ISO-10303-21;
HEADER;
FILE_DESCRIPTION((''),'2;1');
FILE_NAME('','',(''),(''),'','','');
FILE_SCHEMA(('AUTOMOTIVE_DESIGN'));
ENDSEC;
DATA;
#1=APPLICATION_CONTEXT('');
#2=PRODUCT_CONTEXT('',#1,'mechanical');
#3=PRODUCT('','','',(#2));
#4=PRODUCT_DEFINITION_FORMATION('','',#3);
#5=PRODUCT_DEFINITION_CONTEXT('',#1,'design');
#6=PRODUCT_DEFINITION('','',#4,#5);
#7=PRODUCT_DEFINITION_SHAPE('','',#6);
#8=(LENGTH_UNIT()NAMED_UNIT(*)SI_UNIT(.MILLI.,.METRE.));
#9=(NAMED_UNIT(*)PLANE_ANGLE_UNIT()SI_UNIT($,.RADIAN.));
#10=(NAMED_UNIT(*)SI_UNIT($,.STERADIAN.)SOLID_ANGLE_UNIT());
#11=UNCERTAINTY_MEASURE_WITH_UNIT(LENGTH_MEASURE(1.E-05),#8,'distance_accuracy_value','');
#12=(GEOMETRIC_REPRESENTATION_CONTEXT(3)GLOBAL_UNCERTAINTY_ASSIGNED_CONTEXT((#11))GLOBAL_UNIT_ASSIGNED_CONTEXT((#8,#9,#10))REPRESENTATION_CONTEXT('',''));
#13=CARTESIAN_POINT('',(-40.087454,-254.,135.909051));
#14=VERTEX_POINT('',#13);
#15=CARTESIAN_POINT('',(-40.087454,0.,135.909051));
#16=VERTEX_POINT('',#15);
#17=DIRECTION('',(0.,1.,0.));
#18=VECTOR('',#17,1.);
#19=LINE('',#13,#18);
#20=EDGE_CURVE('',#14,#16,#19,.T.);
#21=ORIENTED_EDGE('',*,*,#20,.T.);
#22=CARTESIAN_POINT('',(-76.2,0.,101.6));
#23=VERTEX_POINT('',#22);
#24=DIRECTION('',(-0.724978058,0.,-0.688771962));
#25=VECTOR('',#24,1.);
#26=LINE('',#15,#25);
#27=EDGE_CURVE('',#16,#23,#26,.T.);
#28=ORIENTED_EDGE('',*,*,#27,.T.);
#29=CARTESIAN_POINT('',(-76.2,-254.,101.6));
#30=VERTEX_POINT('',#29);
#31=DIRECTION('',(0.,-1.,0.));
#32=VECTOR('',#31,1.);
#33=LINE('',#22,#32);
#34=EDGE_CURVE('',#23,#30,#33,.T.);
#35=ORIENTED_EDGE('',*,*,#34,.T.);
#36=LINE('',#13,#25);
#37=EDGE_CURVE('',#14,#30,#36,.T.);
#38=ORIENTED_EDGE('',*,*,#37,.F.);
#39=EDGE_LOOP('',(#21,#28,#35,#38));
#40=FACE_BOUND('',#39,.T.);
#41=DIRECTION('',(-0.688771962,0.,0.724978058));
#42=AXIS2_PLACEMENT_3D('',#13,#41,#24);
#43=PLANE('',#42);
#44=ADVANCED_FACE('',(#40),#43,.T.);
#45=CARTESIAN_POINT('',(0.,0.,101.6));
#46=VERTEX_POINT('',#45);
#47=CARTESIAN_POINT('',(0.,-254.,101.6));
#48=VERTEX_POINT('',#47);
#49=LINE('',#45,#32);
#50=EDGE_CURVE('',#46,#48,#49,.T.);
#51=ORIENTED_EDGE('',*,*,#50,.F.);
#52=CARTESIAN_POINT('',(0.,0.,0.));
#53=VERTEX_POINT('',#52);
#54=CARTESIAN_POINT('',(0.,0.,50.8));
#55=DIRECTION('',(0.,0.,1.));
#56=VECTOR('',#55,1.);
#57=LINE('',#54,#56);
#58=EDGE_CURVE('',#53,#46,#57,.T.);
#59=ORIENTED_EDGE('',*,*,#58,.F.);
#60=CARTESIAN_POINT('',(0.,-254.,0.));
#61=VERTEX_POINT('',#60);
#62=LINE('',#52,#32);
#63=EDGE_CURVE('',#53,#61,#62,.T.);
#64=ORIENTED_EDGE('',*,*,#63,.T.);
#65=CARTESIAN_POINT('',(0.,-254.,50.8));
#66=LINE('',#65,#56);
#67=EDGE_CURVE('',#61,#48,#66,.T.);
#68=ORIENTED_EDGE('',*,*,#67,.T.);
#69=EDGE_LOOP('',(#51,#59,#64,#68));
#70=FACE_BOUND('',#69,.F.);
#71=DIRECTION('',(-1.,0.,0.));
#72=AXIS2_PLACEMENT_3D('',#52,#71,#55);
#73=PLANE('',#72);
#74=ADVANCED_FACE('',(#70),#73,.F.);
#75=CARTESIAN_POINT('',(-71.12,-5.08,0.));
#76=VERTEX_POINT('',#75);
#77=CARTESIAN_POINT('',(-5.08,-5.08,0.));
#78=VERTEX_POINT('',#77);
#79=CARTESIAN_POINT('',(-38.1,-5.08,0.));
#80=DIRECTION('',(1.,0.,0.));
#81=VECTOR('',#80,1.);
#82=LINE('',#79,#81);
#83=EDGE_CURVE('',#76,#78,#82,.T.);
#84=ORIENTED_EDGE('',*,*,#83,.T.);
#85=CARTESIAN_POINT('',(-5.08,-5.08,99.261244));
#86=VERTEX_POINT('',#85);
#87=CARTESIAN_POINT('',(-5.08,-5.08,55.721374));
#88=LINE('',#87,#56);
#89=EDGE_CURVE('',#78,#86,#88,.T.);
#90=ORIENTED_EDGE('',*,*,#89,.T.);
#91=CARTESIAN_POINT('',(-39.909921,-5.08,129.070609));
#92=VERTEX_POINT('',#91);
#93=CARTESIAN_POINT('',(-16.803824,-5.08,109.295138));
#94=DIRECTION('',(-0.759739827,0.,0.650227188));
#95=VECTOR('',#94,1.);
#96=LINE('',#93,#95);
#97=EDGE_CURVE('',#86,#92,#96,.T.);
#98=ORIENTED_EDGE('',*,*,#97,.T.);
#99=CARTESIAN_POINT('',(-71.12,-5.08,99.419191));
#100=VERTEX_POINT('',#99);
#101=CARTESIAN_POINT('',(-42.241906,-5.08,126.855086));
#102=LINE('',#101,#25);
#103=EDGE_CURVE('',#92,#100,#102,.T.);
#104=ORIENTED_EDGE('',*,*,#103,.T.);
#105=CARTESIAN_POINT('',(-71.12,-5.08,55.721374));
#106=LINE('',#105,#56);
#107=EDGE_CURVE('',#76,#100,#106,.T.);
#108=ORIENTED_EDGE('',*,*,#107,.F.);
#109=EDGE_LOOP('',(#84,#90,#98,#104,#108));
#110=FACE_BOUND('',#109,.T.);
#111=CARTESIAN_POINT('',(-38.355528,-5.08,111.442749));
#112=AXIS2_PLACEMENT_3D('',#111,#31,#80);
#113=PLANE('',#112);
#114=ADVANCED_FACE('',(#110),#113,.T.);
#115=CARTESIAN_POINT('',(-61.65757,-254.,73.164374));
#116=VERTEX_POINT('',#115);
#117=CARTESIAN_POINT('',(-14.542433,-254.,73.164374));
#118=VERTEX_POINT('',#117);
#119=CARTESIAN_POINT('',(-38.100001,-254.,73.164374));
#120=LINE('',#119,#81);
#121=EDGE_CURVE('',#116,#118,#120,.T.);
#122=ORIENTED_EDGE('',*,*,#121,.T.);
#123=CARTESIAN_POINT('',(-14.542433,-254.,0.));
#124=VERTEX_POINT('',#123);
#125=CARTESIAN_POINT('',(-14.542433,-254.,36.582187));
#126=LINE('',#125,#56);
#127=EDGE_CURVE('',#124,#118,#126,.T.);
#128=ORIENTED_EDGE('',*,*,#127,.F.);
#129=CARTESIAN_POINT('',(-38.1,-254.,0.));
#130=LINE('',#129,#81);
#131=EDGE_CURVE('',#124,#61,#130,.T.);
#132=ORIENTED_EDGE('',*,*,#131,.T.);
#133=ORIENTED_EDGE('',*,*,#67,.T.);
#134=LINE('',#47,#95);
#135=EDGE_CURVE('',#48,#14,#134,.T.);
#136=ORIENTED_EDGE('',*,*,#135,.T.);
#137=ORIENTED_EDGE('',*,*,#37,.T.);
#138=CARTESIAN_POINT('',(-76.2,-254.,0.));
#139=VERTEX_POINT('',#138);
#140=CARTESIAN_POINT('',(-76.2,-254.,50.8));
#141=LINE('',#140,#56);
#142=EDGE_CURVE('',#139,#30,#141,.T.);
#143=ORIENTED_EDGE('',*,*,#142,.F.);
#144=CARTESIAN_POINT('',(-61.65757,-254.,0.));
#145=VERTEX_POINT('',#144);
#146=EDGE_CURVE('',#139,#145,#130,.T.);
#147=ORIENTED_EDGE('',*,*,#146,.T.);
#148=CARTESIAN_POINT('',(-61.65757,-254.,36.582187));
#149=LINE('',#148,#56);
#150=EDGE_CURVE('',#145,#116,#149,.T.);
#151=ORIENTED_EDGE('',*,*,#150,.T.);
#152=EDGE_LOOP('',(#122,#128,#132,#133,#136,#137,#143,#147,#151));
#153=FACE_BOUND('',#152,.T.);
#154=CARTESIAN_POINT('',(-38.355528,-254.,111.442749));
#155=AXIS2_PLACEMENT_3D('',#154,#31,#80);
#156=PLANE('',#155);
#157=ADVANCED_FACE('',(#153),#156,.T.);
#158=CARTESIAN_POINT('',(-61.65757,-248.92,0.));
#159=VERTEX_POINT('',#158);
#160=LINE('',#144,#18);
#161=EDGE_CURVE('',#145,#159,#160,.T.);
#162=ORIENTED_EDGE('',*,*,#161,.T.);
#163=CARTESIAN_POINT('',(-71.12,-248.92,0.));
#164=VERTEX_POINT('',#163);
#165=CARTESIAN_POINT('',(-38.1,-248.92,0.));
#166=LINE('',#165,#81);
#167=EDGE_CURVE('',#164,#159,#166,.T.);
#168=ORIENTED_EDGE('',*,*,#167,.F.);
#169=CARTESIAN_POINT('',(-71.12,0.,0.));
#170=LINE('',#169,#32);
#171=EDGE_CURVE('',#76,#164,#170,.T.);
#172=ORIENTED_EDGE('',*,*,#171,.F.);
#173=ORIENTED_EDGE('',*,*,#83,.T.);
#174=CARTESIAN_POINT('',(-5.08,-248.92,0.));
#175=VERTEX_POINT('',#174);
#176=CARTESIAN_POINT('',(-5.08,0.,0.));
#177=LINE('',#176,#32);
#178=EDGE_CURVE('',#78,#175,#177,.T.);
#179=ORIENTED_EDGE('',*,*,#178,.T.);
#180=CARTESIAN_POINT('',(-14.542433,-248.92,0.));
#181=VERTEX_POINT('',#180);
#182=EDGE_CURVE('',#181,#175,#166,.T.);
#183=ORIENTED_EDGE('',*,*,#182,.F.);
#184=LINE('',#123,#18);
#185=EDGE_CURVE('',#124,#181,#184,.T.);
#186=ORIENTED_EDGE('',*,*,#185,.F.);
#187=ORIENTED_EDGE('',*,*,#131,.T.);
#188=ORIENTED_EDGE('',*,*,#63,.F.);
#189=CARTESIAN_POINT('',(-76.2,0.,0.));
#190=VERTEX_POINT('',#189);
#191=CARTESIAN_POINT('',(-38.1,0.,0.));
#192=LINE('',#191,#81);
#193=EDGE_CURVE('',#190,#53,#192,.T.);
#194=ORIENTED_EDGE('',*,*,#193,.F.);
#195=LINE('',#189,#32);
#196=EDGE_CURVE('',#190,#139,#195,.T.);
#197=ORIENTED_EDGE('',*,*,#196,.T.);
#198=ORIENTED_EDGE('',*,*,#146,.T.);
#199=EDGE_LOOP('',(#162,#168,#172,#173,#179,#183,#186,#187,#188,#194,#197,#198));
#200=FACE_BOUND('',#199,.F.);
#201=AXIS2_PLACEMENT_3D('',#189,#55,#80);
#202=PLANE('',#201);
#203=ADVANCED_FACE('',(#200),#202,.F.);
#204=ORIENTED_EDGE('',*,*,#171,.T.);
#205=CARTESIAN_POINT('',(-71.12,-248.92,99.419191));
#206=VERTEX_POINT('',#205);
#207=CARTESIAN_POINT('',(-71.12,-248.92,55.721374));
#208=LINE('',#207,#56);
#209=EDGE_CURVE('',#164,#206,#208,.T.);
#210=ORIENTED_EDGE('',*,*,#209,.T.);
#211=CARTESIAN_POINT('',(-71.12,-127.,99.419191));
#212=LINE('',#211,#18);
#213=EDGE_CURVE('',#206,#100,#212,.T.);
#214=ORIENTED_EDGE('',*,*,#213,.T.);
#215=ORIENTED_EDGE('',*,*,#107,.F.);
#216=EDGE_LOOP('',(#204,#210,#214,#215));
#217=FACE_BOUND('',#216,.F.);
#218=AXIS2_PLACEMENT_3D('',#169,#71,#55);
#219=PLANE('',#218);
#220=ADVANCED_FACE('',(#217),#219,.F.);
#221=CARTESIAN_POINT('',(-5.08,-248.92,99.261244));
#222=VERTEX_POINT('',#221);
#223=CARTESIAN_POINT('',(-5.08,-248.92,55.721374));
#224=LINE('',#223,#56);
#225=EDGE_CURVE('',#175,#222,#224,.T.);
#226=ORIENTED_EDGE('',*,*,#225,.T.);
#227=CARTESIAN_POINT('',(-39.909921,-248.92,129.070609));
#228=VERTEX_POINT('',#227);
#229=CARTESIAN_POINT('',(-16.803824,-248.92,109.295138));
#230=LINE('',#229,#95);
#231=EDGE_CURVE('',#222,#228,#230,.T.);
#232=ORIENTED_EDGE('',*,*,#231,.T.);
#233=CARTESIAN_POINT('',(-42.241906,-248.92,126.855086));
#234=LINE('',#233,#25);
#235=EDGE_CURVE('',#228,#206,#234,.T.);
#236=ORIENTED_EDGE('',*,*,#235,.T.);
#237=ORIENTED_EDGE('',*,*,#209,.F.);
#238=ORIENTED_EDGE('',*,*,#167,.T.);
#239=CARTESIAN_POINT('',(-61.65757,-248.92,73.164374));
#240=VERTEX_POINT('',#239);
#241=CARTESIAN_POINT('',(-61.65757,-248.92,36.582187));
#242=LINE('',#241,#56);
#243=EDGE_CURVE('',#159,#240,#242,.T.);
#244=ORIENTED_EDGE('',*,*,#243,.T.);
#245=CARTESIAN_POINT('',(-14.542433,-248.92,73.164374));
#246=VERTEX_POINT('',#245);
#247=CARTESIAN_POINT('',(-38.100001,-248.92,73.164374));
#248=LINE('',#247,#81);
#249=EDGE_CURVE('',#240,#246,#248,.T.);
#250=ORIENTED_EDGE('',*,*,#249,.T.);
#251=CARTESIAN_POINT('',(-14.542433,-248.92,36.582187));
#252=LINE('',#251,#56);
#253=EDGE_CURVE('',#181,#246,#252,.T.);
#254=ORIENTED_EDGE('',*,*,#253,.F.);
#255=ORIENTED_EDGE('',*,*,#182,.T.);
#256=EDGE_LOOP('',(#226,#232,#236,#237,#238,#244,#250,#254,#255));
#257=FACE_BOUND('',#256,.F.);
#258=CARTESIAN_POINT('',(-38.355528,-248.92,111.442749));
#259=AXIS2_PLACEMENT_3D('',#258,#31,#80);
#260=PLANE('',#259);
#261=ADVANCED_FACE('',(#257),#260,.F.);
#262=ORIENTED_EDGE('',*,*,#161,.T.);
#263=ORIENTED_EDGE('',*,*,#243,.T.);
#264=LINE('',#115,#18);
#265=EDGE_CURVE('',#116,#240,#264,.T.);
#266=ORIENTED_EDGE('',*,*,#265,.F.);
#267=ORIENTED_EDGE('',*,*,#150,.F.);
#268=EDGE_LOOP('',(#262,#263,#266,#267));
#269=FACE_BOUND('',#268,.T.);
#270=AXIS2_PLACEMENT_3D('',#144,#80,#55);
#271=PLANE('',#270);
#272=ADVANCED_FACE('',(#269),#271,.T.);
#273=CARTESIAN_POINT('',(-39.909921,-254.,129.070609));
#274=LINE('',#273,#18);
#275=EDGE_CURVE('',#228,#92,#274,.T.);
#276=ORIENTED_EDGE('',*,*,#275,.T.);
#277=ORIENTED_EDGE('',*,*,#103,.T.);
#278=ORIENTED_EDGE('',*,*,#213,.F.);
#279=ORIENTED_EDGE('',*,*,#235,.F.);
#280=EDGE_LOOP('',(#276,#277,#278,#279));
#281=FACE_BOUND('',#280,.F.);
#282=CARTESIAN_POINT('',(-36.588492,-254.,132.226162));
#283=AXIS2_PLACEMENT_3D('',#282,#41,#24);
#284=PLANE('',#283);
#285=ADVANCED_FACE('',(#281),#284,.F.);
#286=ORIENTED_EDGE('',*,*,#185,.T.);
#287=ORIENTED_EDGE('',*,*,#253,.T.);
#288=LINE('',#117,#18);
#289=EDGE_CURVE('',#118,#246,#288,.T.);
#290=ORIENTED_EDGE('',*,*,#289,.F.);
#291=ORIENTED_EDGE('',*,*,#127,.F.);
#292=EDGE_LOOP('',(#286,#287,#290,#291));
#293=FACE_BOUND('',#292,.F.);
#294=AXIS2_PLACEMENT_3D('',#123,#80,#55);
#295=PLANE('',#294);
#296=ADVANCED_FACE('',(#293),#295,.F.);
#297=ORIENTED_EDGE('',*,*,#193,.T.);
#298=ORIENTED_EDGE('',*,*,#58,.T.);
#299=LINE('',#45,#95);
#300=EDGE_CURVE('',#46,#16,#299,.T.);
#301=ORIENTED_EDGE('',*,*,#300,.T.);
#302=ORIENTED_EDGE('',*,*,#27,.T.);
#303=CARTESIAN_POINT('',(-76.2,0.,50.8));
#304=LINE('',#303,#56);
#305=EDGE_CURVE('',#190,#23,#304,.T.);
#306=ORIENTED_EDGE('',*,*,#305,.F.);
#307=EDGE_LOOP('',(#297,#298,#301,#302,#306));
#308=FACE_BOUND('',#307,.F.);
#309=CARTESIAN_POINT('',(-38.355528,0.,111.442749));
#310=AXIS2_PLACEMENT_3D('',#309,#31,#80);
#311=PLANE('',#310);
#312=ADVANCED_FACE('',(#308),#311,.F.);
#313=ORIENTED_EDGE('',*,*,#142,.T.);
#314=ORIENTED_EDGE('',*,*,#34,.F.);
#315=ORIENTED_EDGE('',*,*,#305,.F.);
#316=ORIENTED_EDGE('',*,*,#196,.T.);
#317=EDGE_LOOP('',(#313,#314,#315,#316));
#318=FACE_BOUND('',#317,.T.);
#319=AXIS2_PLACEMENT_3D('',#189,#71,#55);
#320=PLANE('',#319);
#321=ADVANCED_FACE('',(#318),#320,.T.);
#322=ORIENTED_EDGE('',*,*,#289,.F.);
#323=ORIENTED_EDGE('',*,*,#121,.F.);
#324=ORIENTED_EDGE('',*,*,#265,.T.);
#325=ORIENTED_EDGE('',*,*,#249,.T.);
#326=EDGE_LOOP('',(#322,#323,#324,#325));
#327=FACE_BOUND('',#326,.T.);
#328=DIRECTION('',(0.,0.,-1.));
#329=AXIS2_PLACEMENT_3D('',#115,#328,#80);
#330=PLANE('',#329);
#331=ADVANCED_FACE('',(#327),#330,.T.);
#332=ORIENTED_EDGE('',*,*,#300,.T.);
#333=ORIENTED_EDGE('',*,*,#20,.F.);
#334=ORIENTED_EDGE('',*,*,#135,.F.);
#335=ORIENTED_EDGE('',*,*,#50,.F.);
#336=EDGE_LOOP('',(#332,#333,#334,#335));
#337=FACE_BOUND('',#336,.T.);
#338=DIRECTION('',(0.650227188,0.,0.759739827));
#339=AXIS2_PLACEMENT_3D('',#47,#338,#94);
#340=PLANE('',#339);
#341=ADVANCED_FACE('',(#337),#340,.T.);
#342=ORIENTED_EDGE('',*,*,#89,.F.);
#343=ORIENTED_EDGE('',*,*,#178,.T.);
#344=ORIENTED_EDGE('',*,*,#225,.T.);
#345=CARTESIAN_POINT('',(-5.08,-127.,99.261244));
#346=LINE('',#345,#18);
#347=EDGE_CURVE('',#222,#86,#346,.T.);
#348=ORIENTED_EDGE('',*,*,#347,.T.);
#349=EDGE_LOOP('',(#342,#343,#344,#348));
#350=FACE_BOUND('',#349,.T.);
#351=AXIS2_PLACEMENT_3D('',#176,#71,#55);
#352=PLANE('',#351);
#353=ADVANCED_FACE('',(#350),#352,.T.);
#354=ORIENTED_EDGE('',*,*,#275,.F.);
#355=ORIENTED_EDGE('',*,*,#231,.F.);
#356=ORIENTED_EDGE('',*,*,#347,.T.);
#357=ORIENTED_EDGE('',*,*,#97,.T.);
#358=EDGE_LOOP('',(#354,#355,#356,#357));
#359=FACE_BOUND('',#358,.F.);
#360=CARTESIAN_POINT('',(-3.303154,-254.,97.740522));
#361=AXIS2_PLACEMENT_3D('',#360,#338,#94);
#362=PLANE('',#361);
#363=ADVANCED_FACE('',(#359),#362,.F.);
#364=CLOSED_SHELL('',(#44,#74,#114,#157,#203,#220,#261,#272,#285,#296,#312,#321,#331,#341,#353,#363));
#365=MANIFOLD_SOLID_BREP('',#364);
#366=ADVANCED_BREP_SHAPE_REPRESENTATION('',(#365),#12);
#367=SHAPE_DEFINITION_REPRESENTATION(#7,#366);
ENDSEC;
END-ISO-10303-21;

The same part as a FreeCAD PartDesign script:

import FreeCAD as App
import Part
import Sketcher

V = App.Vector
Q = App.Units.Quantity


def faces_at(feature, points):
    """Names of the faces that lie closest to the given points."""
    faces = feature.Shape.Faces
    near = lambda p: min(range(len(faces)), key=lambda i: faces[i].distToShape(Part.Vertex(*p))[0])
    return sorted({f"Face{near(p) + 1}" for p in points})


def add_polygon(sketch, points):
    """Adds a closed chain of lines whose ends are joined by coincident constraints."""
    first, n = sketch.GeometryCount, len(points)
    for a, b in zip(points, points[1:] + points[:1]):
        sketch.addGeometry(Part.LineSegment(App.Vector(*a, 0), App.Vector(*b, 0)), False)
    for i in range(n):
        sketch.addConstraint(Sketcher.Constraint("Coincident", first + i, 2, first + (i + 1) % n, 1))

doc = App.newDocument("Part")
body = doc.addObject("PartDesign::Body", "Body")

sketch1 = body.newObject("Sketcher::SketchObject", "Sketch")
sketch1.AttachmentSupport = (doc.getObject("XZ_Plane"), [""])
sketch1.MapMode = "FlatFace"
add_polygon(sketch1, [(-76, 102), (-76, 0), (0, 0), (0, 102)])
sketch1.addConstraint([
    Sketcher.Constraint("Vertical", 0),
    Sketcher.Constraint("Horizontal", 1),
    Sketcher.Constraint("Vertical", 2),
    Sketcher.Constraint("Horizontal", 3),
    Sketcher.Constraint("Coincident", 1, 2, -1, 1),
    Sketcher.Constraint("DistanceX", 1, 1, 1, 2, Q("3 in")),
    Sketcher.Constraint("DistanceY", 0, 2, 0, 1, Q("4 in")),
])
pad1 = body.newObject("PartDesign::Pad", "Pad")
pad1.Profile = sketch1
pad1.Length = Q("10 in")

sketch2 = body.newObject("Sketcher::SketchObject", "Sketch001")
sketch2.AttachmentSupport = (doc.getObject("XZ_Plane"), [""])
sketch2.MapMode = "FlatFace"
sketch2.AttachmentOffset = App.Placement(V(0, 0, 10 * 25.4), App.Rotation())
add_polygon(sketch2, [(-40, 136), (-76, 102), (0, 102)])
sketch2.addConstraint([
    Sketcher.Constraint("Horizontal", 1),
    Sketcher.Constraint("PointOnObject", 1, 2, -2),
    Sketcher.Constraint("DistanceX", 1, 1, 1, 2, Q("3 in")),
    Sketcher.Constraint("DistanceY", -1, 1, 0, 2, Q("4 in")),
    Sketcher.Constraint("DistanceY", -1, 1, 2, 2, Q("135.909051 mm")),
    Sketcher.Constraint("Distance", 0, Q("49.811916 mm")),
])
pad2 = body.newObject("PartDesign::Pad", "Pad001")
pad2.Profile = sketch2
pad2.Length = Q("10 in")
pad2.Reversed = True
doc.recompute()

thickness = body.newObject("PartDesign::Thickness", "Thickness")
thickness.Base = (pad2, faces_at(pad2, [(-38.1, -127, 0)]))
thickness.Value = Q("0.2 in")
thickness.Reversed = True
thickness.Join = "Arc"

sketch3 = body.newObject("Sketcher::SketchObject", "Sketch002")
sketch3.AttachmentSupport = (doc.getObject("XZ_Plane"), [""])
sketch3.MapMode = "FlatFace"
sketch3.AttachmentOffset = App.Placement(V(0, 0, 10 * 25.4), App.Rotation())
add_polygon(sketch3, [(-62, 73), (-62, 0), (-15, 0), (-15, 73)])
sketch3.addConstraint([
    Sketcher.Constraint("Vertical", 0),
    Sketcher.Constraint("Horizontal", 1),
    Sketcher.Constraint("Vertical", 2),
    Sketcher.Constraint("Horizontal", 3),
    Sketcher.Constraint("PointOnObject", 0, 2, -1),
    Sketcher.Constraint("DistanceX", 1, 1, 1, 2, Q("47.115137 mm")),
    Sketcher.Constraint("DistanceY", 0, 2, 0, 1, Q("73.164374 mm")),
    Sketcher.Constraint("DistanceX", 0, 2, -1, 1, Q("61.65757 mm")),
])
pocket1 = body.newObject("PartDesign::Pocket", "Pocket")
pocket1.Profile = sketch3
pocket1.Length = Q("0.2 in")

doc.recompute()
